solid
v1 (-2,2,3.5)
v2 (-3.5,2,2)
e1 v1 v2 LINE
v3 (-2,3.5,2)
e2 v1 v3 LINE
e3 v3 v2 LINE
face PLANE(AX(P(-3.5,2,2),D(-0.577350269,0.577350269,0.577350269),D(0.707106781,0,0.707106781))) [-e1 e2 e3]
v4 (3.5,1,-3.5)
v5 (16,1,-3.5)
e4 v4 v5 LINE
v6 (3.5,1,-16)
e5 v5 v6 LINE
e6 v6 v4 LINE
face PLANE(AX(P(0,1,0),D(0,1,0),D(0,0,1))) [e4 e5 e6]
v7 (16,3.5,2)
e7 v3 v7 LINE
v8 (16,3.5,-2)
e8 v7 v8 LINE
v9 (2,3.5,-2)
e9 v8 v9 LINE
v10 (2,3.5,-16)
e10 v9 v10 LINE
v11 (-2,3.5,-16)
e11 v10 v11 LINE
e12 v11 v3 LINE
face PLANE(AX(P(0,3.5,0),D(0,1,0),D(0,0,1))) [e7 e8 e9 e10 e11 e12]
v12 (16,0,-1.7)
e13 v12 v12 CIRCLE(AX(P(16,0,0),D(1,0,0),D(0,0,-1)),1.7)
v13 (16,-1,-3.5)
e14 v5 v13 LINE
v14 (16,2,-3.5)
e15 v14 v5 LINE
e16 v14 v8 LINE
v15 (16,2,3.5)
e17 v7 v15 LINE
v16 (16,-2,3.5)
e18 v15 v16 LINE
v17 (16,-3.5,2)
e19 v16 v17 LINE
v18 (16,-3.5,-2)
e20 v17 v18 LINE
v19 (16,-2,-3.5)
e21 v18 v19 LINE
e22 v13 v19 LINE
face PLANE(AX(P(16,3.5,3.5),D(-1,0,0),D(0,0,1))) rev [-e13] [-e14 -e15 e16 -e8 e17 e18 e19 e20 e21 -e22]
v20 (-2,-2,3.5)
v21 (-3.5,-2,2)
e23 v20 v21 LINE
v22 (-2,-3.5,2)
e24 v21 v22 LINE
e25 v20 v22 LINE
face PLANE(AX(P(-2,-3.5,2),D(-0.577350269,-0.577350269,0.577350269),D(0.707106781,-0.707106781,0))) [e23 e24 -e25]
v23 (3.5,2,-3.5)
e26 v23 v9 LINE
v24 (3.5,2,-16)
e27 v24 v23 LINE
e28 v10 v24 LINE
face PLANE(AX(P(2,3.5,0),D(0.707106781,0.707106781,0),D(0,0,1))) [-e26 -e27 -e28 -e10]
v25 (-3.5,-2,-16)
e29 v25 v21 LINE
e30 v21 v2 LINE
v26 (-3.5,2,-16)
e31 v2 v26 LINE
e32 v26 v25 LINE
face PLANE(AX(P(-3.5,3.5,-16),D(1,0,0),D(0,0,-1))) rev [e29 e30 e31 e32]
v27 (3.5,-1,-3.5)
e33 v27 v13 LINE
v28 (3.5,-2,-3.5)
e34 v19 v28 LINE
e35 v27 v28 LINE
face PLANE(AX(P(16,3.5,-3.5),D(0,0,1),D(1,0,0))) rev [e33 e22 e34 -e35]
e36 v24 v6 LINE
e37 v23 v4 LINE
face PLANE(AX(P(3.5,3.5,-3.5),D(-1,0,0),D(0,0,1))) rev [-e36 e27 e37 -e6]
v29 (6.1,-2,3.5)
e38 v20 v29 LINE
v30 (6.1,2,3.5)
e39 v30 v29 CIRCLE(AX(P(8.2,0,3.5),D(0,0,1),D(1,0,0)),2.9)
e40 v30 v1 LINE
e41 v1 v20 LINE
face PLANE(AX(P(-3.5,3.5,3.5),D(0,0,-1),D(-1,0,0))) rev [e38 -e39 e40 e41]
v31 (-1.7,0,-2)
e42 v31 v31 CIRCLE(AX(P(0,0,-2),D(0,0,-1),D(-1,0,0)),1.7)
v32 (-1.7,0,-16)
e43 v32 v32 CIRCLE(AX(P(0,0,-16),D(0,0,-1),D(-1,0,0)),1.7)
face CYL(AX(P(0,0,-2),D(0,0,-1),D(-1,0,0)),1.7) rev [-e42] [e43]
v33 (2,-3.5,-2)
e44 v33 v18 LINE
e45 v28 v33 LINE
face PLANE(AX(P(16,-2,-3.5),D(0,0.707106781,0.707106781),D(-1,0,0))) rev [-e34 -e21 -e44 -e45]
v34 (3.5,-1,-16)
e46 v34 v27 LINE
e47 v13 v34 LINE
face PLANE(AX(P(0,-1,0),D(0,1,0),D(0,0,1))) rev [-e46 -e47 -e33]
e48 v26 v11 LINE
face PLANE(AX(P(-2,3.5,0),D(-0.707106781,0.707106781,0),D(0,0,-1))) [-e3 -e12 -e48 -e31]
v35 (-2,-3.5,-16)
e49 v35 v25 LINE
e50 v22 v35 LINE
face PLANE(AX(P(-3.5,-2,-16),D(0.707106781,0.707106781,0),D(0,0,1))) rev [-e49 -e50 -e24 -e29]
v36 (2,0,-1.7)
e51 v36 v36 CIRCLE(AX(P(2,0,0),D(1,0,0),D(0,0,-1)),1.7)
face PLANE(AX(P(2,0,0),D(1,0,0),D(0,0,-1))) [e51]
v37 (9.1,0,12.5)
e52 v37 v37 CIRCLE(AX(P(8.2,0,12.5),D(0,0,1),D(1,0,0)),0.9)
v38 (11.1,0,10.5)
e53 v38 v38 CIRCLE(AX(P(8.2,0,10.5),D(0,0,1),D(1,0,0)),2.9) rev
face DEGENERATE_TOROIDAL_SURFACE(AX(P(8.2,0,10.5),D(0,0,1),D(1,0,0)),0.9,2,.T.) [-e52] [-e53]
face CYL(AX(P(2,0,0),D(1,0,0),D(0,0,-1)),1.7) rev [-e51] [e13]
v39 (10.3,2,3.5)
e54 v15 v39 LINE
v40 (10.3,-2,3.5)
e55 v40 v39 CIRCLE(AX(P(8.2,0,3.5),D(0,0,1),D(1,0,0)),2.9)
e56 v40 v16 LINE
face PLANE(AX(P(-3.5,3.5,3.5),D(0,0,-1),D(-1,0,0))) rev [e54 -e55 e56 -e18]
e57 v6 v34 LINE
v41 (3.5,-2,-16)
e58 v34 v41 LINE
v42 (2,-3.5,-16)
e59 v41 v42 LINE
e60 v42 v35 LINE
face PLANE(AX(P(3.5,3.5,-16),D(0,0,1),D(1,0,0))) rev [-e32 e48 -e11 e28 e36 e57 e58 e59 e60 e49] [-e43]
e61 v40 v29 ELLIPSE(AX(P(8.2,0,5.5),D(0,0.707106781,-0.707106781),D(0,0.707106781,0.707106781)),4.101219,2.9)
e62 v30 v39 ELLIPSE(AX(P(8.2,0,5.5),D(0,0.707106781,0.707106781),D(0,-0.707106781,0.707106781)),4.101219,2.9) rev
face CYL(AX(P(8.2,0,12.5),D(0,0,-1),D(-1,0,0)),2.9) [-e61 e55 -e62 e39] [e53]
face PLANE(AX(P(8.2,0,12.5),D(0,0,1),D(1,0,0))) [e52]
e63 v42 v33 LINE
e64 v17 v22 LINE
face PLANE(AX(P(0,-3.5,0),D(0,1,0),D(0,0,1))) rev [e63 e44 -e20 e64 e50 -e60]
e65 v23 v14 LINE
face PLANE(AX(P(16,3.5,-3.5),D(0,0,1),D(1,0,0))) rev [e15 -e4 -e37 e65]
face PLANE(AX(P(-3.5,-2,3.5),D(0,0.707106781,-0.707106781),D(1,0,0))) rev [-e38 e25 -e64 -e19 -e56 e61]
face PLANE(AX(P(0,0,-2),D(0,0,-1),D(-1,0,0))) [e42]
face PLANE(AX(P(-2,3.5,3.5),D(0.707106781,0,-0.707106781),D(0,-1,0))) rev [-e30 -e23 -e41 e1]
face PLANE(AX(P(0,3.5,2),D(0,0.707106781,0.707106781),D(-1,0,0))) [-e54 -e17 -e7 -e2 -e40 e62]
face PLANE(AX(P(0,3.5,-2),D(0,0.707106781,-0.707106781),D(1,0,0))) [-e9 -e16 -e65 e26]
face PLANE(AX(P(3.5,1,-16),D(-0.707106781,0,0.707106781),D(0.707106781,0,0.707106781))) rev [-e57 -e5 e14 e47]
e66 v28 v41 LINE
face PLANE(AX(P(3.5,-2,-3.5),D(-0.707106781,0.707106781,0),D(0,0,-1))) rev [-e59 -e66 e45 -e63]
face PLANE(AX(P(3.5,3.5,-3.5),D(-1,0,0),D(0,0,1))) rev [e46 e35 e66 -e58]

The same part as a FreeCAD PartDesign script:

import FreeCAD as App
import Part
import Sketcher
from FreeCAD import Vector


def edges_at(feature, points):
    """Names of the edges that pass closest to the given points."""
    edges = feature.Shape.Edges
    near = lambda p: min(range(len(edges)), key=lambda i: edges[i].distToShape(Part.Vertex(*p))[0])
    return sorted({f"Edge{near(p) + 1}" for p in points})


def add_polygon(sketch, points):
    """Adds a closed chain of lines whose ends are joined by coincident constraints."""
    first, n = sketch.GeometryCount, len(points)
    for a, b in zip(points, points[1:] + points[:1]):
        sketch.addGeometry(Part.LineSegment(App.Vector(*a, 0), App.Vector(*b, 0)), False)
    for i in range(n):
        sketch.addConstraint(Sketcher.Constraint("Coincident", first + i, 2, first + (i + 1) % n, 1))

doc = App.newDocument("Part")
params = doc.addObject("Spreadsheet::Sheet", "Params")
for row, (alias, value) in enumerate([
    ("sketch1_width", "7 mm"),
    ("sketch1_width2", "19.5 mm"),
    ("pad1_length", "7 mm"),
    ("sketch2_diameter", "3.4 mm"),
    ("pocket1_length", "14 mm"),
    ("sketch3_diameter", "3.4 mm"),
    ("pocket2_length", "14 mm"),
    ("sketch4_width", "12.5 mm"),
    ("pad2_length", "2 mm"),
    ("chamfer_size", "1.5 mm"),
    ("sketch5_diameter", "5.8 mm"),
    ("pad3_length", "9.9 mm"),
    ("fillet_radius", "2 mm"),
], start=1):
    params.set(f"A{row}", alias)
    params.set(f"B{row}", "=" + value)
    params.setAlias(f"B{row}", alias)

body = doc.addObject("PartDesign::Body", "Body")

# Sketch on XZ plane
sketch1 = doc.addObject("Sketcher::SketchObject", "Sketch")
body.addObject(sketch1)
sketch1.AttachmentSupport = (doc.XZ_Plane, [""])
sketch1.MapMode = "FlatFace"
add_polygon(sketch1, [(-3.5, -16), (-3.5, 3.5), (16, 3.5), (16, -3.5), (3.5, -3.5), (3.5, -16)])  # lines 0-5
sketch1.addConstraint([
    Sketcher.Constraint("Vertical", 0),
    Sketcher.Constraint("Horizontal", 1),
    Sketcher.Constraint("Vertical", 2),
    Sketcher.Constraint("Horizontal", 3),
    Sketcher.Constraint("Vertical", 4),
    Sketcher.Constraint("Horizontal", 5),
    Sketcher.Constraint("Symmetric", 0, 2, 3, 2, -1, 1),
    Sketcher.Constraint("Equal", 1, 0),
    Sketcher.Constraint("Equal", 5, 2),
    Sketcher.Constraint("DistanceX", 5, 2, 5, 1, 7.0),
    Sketcher.Constraint("DistanceX", 1, 1, 1, 2, 19.5),
])
sketch1.setExpression("Constraints[15]", "Params.sketch1_width")
sketch1.setExpression("Constraints[16]", "Params.sketch1_width2")
pad1 = doc.addObject("PartDesign::Pad", "Pad")
body.addObject(pad1)
pad1.Profile = sketch1
pad1.setExpression("Length", "Params.pad1_length")
pad1.Midplane = True

# Sketch on XY plane
sketch2 = doc.addObject("Sketcher::SketchObject", "Sketch001")
body.addObject(sketch2)
sketch2.AttachmentSupport = (doc.XY_Plane, [""])
sketch2.MapMode = "FlatFace"
sketch2.AttachmentOffset = App.Placement(Vector(0, 0, -16), App.Rotation())
sketch2.addGeometry(Part.Circle(Vector(0, 0, 0), Vector(0, 0, 1), 1.7), False)
sketch2.addConstraint([
    Sketcher.Constraint("Coincident", 0, 3, -1, 1),
    Sketcher.Constraint("Diameter", 0, 3.4),
])
sketch2.setExpression("Constraints[1]", "Params.sketch2_diameter")
pocket1 = doc.addObject("PartDesign::Pocket", "Pocket")
body.addObject(pocket1)
pocket1.Profile = sketch2
pocket1.setExpression("Length", "Params.pocket1_length")
pocket1.Reversed = True

# Sketch on YZ plane
sketch3 = doc.addObject("Sketcher::SketchObject", "Sketch002")
body.addObject(sketch3)
sketch3.AttachmentSupport = (doc.YZ_Plane, [""])
sketch3.MapMode = "FlatFace"
sketch3.AttachmentOffset = App.Placement(Vector(0, 0, 16), App.Rotation())
sketch3.addGeometry(Part.Circle(Vector(0, 0, 0), Vector(0, 0, 1), 1.7), False)
sketch3.addConstraint([
    Sketcher.Constraint("Coincident", 0, 3, -1, 1),
    Sketcher.Constraint("Diameter", 0, 3.4),
])
sketch3.setExpression("Constraints[1]", "Params.sketch3_diameter")
pocket2 = doc.addObject("PartDesign::Pocket", "Pocket001")
body.addObject(pocket2)
pocket2.Profile = sketch3
pocket2.setExpression("Length", "Params.pocket2_length")

# Sketch on XZ plane
sketch4 = doc.addObject("Sketcher::SketchObject", "Sketch003")
body.addObject(sketch4)
sketch4.AttachmentSupport = (doc.XZ_Plane, [""])
sketch4.MapMode = "FlatFace"
add_polygon(sketch4, [(16, -3.5), (3.5, -16), (3.5, -3.5)])  # lines 0-2
sketch4.addConstraint([
    Sketcher.Constraint("Vertical", 1),
    Sketcher.Constraint("Horizontal", 2),
    Sketcher.Constraint("Equal", 2, 1),
    Sketcher.Constraint("DistanceX", 2, 1, 2, 2, 12.5),
    Sketcher.Constraint("DistanceY", 0, 2, -1, 1, 16.0),
    Sketcher.Constraint("DistanceX", -1, 1, 2, 2, 16.0),
])
sketch4.setExpression("Constraints[6]", "Params.sketch4_width")
pad2 = doc.addObject("PartDesign::Pad", "Pad001")
body.addObject(pad2)
pad2.Profile = sketch4
pad2.setExpression("Length", "Params.pad2_length")
pad2.Midplane = True
doc.recompute()

chamfer = doc.addObject("PartDesign::Chamfer", "Chamfer")
body.addObject(chamfer)
chamfer.Base = (pad2, edges_at(pad2, [
    (-3.5, 0, 3.5),
    (6.25, 3.5, 3.5),
    (9.75, 3.5, -3.5),
    (3.5, 3.5, -9.75),
    (3.5, -3.5, -9.75),
    (9.75, -3.5, -3.5),
    (6.25, -3.5, 3.5),
    (-3.5, -3.5, -6.25),
    (-3.5, 3.5, -6.25),
]))
chamfer.setExpression("Size", "Params.chamfer_size")

# Sketch on XY plane
sketch5 = doc.addObject("Sketcher::SketchObject", "Sketch004")
body.addObject(sketch5)
sketch5.AttachmentSupport = (doc.XY_Plane, [""])
sketch5.MapMode = "FlatFace"
sketch5.AttachmentOffset = App.Placement(Vector(0, 0, 2.6), App.Rotation())
sketch5.addGeometry(Part.Circle(Vector(8.2, 0, 0), Vector(0, 0, 1), 2.9), False)
sketch5.addConstraint([
    Sketcher.Constraint("PointOnObject", 0, 3, -1),
    Sketcher.Constraint("Diameter", 0, 5.8),
    Sketcher.Constraint("DistanceX", -1, 1, 0, 3, 8.2),
])
sketch5.setExpression("Constraints[1]", "Params.sketch5_diameter")
pad3 = doc.addObject("PartDesign::Pad", "Pad002")
body.addObject(pad3)
pad3.Profile = sketch5
pad3.setExpression("Length", "Params.pad3_length")
doc.recompute()

fillet = doc.addObject("PartDesign::Fillet", "Fillet")
body.addObject(fillet)
fillet.Base = (pad3, edges_at(pad3, [(10.3, 2, 12.5)]))
fillet.setExpression("Radius", "Params.fillet_radius")

doc.recompute()
